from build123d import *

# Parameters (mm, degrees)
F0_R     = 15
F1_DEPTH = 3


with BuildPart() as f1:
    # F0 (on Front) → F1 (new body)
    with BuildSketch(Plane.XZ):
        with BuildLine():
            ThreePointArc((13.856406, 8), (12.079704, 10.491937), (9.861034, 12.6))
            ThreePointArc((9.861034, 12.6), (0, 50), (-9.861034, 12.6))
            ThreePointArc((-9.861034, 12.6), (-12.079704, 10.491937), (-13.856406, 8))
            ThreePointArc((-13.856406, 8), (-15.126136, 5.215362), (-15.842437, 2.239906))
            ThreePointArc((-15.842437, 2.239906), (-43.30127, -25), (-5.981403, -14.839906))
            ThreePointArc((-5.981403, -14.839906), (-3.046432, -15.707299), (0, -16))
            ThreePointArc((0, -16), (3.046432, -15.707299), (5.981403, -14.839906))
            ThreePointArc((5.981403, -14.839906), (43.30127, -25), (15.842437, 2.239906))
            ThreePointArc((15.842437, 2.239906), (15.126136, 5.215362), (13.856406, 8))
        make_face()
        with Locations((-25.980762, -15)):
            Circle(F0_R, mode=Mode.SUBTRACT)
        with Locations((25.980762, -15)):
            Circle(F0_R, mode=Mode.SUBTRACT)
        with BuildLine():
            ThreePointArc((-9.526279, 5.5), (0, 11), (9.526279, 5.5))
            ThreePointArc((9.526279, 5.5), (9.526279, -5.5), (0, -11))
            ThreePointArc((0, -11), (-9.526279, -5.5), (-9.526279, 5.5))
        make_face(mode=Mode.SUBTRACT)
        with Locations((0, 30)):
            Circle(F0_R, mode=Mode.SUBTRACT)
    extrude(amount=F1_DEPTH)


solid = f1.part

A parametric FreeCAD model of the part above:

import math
import FreeCAD as App
import Part
import Sketcher

V = App.Vector
Q = App.Units.Quantity

doc = App.newDocument("Part")
params = doc.addObject("Spreadsheet::Sheet", "Params")
for row, (alias, value) in enumerate([
    ("sketch1_diameter", "30 mm"),
    ("sketch1_radius", "20 mm"),
    ("sketch1_radius2", "11 mm"),
    ("pad1_length", "3 mm"),
], start=1):
    params.set(f"A{row}", alias)
    params.set(f"B{row}", "=" + value)
    params.setAlias(f"B{row}", alias)

body = doc.addObject("PartDesign::Body", "Body")

sketch1 = body.newObject("Sketcher::SketchObject", "Sketch")
sketch1.AttachmentSupport = (doc.getObject("XZ_Plane"), [""])
sketch1.MapMode = "FlatFace"
sketch1.addGeometry(Part.ArcOfCircle(Part.Circle(V(0.000002, 0.000002, 0), V(0, 0, 1), 15.999997), math.radians(29.999998), math.radians(51.952494)), False)
sketch1.addGeometry(Part.ArcOfCircle(Part.Circle(V(0, 30, 0), V(0, 0, 1), 20), math.radians(-60.458641), math.radians(240.458641)), False)
sketch1.addGeometry(Part.ArcOfCircle(Part.Circle(V(-0.000002, 0.000002, 0), V(0, 0, 1), 15.999997), math.radians(128.047506), math.radians(150.000002)), False)
sketch1.addGeometry(Part.ArcOfCircle(Part.Circle(V(-0.000005, 0.000002, 0), V(0, 0, 1), 15.999995), math.radians(149.999995), math.radians(171.952496)), False)
sketch1.addGeometry(Part.ArcOfCircle(Part.Circle(V(-25.980762, -15, 0), V(0, 0, 1), 20), math.radians(59.541359), math.radians(360.45864)), False)
sketch1.addGeometry(Part.ArcOfCircle(Part.Circle(V(0.000003, 0.00001, 0), V(0, 0, 1), 16.00001), math.radians(-111.952489), math.radians(-90.00001)), False)
sketch1.addGeometry(Part.ArcOfCircle(Part.Circle(V(-0.000003, 0.00001, 0), V(0, 0, 1), 16.00001), math.radians(-89.99999), math.radians(-68.047511)), False)
sketch1.addGeometry(Part.ArcOfCircle(Part.Circle(V(25.980762, -15, 0), V(0, 0, 1), 20), math.radians(179.54136), math.radians(480.458641)), False)
sketch1.addGeometry(Part.ArcOfCircle(Part.Circle(V(0.000005, 0.000002, 0), V(0, 0, 1), 15.999995), math.radians(8.047504), math.radians(30.000005)), False)
sketch1.addGeometry(Part.Circle(V(-25.980762, -15, 0), V(0, 0, 1), 15), False)
sketch1.addGeometry(Part.ArcOfCircle(Part.Circle(V(0, 0, 0), V(0, 0, 1), 11), math.radians(150), math.radians(269.999998)), False)
sketch1.addGeometry(Part.ArcOfCircle(Part.Circle(V(0, 0.000001, 0), V(0, 0, 1), 10.999999), math.radians(29.999998), math.radians(150.000002)), False)
sketch1.addGeometry(Part.ArcOfCircle(Part.Circle(V(0, 0, 0), V(0, 0, 1), 11), math.radians(-89.999998), math.radians(30)), False)
sketch1.addGeometry(Part.Circle(V(25.980762, -15, 0), V(0, 0, 1), 15), False)
sketch1.addGeometry(Part.Circle(V(0, 30, 0), V(0, 0, 1), 15), False)
sketch1.addConstraint(Sketcher.Constraint("Coincident", 0, 2, 1, 1))
sketch1.addConstraint(Sketcher.Constraint("Coincident", 1, 2, 2, 1))
sketch1.addConstraint(Sketcher.Constraint("Tangent", 2, 2, 3, 1))
sketch1.addConstraint(Sketcher.Constraint("Coincident", 3, 2, 4, 1))
sketch1.addConstraint(Sketcher.Constraint("Coincident", 4, 2, 5, 1))
sketch1.addConstraint(Sketcher.Constraint("Tangent", 5, 2, 6, 1))
sketch1.addConstraint(Sketcher.Constraint("Coincident", 6, 2, 7, 1))
sketch1.addConstraint(Sketcher.Constraint("Coincident", 7, 2, 8, 1))
sketch1.addConstraint(Sketcher.Constraint("Tangent", 8, 2, 0, 1))
sketch1.addConstraint(Sketcher.Constraint("Tangent", 10, 1, 11, 2))
sketch1.addConstraint(Sketcher.Constraint("Tangent", 11, 1, 12, 2))
sketch1.addConstraint(Sketcher.Constraint("Tangent", 12, 1, 10, 2))
sketch1.addConstraint(Sketcher.Constraint("Coincident", 0, 3, -1, 1))
sketch1.addConstraint(Sketcher.Constraint("Coincident", 2, 3, -1, 1))
sketch1.addConstraint(Sketcher.Constraint("Coincident", 10, 3, -1, 1))
sketch1.addConstraint(Sketcher.Constraint("Coincident", 5, 3, 0, 3))
sketch1.addConstraint(Sketcher.Constraint("Coincident", 9, 3, 4, 3))
sketch1.addConstraint(Sketcher.Constraint("Coincident", 13, 3, 7, 3))
sketch1.addConstraint(Sketcher.Constraint("Coincident", 14, 3, 1, 3))
sketch1.addConstraint(Sketcher.Constraint("Equal", 0, 2))
sketch1.addConstraint(Sketcher.Constraint("Equal", 1, 4))
sketch1.addConstraint(Sketcher.Constraint("Equal", 5, 6))
sketch1.addConstraint(Sketcher.Constraint("Equal", 4, 7))
sketch1.addConstraint(Sketcher.Constraint("Equal", 3, 8))
sketch1.addConstraint(Sketcher.Constraint("Equal", 9, 13))
sketch1.addConstraint(Sketcher.Constraint("Equal", 13, 14))
sketch1.addConstraint(Sketcher.Constraint("Symmetric", 4, 3, 7, 3, -2))
sketch1.addConstraint(Sketcher.Constraint("PointOnObject", 1, 3, -2))
sketch1.addConstraint(Sketcher.Constraint("PointOnObject", 3, 3, -1))
sketch1.addConstraint(Sketcher.Constraint("PointOnObject", 5, 2, -2))
sketch1.addConstraint(Sketcher.Constraint("PointOnObject", 12, 1, -2))
sketch1.addConstraint(Sketcher.Constraint("Horizontal", 2, 2, 8, 2))
sketch1.addConstraint(Sketcher.Constraint("Horizontal", 10, 1, 11, 1))
sketch1.addConstraint(Sketcher.Constraint("Diameter", 9, Q("30 mm")))
sketch1.addConstraint(Sketcher.Constraint("Radius", 1, Q("20 mm")))
sketch1.addConstraint(Sketcher.Constraint("Radius", 10, Q("11 mm")))
sketch1.addConstraint(Sketcher.Constraint("DistanceY", -1, 1, 1, 3, Q("30 mm")))
sketch1.addConstraint(Sketcher.Constraint("DistanceY", 4, 3, -1, 1, Q("15 mm")))
sketch1.addConstraint(Sketcher.Constraint("DistanceY", -1, 1, 2, 2, Q("8 mm")))
sketch1.addConstraint(Sketcher.Constraint("DistanceY", 5, 2, -1, 1, Q("16 mm")))
sketch1.addConstraint(Sketcher.Constraint("DistanceY", -1, 1, 0, 2, Q("12.6 mm")))
sketch1.addConstraint(Sketcher.Constraint("DistanceY", -1, 1, 10, 1, Q("5.5 mm")))
sketch1.addConstraint(Sketcher.Constraint("DistanceX", 4, 2, 3, 3, Q("5.981398 mm")))
sketch1.setExpression("Constraints[33]", "Params.sketch1_diameter")
sketch1.setExpression("Constraints[34]", "Params.sketch1_radius")
sketch1.setExpression("Constraints[35]", "Params.sketch1_radius2")
pad1 = body.newObject("PartDesign::Pad", "Pad")
pad1.Profile = sketch1
pad1.setExpression("Length", "Params.pad1_length")

doc.recompute()
